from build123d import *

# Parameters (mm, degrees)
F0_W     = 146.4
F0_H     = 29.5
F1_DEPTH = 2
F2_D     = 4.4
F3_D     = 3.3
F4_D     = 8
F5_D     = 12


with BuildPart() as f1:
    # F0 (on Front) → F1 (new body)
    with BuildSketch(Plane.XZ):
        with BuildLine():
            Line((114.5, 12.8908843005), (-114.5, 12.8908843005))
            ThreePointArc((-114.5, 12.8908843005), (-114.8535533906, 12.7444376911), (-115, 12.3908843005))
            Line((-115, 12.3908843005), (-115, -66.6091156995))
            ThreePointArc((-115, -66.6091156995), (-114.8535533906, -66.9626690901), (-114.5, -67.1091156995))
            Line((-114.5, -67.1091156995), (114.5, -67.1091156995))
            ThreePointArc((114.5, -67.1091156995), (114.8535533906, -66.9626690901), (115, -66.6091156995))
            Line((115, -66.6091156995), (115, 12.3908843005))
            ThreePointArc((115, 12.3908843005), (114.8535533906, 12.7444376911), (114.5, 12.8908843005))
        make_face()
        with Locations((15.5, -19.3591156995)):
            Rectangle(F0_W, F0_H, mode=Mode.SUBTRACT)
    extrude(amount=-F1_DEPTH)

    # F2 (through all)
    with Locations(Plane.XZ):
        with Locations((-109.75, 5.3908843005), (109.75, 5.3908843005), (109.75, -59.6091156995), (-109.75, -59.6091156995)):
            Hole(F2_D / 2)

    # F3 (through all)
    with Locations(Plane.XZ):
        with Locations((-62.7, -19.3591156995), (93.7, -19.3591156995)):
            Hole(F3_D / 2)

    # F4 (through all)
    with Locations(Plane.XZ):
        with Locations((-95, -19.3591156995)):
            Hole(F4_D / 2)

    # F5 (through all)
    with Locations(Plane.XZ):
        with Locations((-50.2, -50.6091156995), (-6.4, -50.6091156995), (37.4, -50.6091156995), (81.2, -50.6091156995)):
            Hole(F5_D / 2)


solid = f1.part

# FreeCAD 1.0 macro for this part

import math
import FreeCAD as App
import Part
import Sketcher
Q = App.Units.Quantity

doc = App.newDocument("Part")
body = doc.addObject("PartDesign::Body", "Body")

# Sketch on XZ plane
sketch1 = body.newObject("Sketcher::SketchObject", "Sketch")
sketch1.AttachmentSupport = (doc.getObject("XZ_Plane"), [""])
sketch1.MapMode = "FlatFace"
sketch1.addGeometry(Part.LineSegment(App.Vector(114.5, 12.9, 0), App.Vector(-114.5, 12.9, 0)), False)
sketch1.addGeometry(Part.ArcOfCircle(Part.Circle(App.Vector(-114.5, 12.4, 0), App.Vector(0, 0, 1), 0.5), math.radians(90), math.radians(180)), False)
sketch1.addGeometry(Part.LineSegment(App.Vector(-115, 12.4, 0), App.Vector(-115, -66.6, 0)), False)
sketch1.addGeometry(Part.ArcOfCircle(Part.Circle(App.Vector(-114.5, -66.6, 0), App.Vector(0, 0, 1), 0.5), math.radians(180), math.radians(270)), False)
sketch1.addGeometry(Part.LineSegment(App.Vector(-114.5, -67.1, 0), App.Vector(114.5, -67.1, 0)), False)
sketch1.addGeometry(Part.ArcOfCircle(Part.Circle(App.Vector(114.5, -66.6, 0), App.Vector(0, 0, 1), 0.5), math.radians(-90), math.radians(0)), False)
sketch1.addGeometry(Part.LineSegment(App.Vector(115, -66.6, 0), App.Vector(115, 12.4, 0)), False)
sketch1.addGeometry(Part.ArcOfCircle(Part.Circle(App.Vector(114.5, 12.4, 0), App.Vector(0, 0, 1), 0.5), math.radians(0), math.radians(90)), False)
sketch1.addGeometry(Part.LineSegment(App.Vector(88.7, -34.1, 0), App.Vector(-57.7, -34.1, 0)), False)
sketch1.addGeometry(Part.LineSegment(App.Vector(-57.7, -34.1, 0), App.Vector(-57.7, -4.6, 0)), False)
sketch1.addGeometry(Part.LineSegment(App.Vector(-57.7, -4.6, 0), App.Vector(88.7, -4.6, 0)), False)
sketch1.addGeometry(Part.LineSegment(App.Vector(88.7, -4.6, 0), App.Vector(88.7, -34.1, 0)), False)
sketch1.addConstraint(Sketcher.Constraint("Tangent", 0, 2, 1, 1))
sketch1.addConstraint(Sketcher.Constraint("Tangent", 1, 2, 2, 1))
sketch1.addConstraint(Sketcher.Constraint("Tangent", 2, 2, 3, 1))
sketch1.addConstraint(Sketcher.Constraint("Tangent", 3, 2, 4, 1))
sketch1.addConstraint(Sketcher.Constraint("Tangent", 4, 2, 5, 1))
sketch1.addConstraint(Sketcher.Constraint("Tangent", 5, 2, 6, 1))
sketch1.addConstraint(Sketcher.Constraint("Tangent", 6, 2, 7, 1))
sketch1.addConstraint(Sketcher.Constraint("Tangent", 7, 2, 0, 1))
sketch1.addConstraint(Sketcher.Constraint("Coincident", 8, 2, 9, 1))
sketch1.addConstraint(Sketcher.Constraint("Coincident", 9, 2, 10, 1))
sketch1.addConstraint(Sketcher.Constraint("Coincident", 10, 2, 11, 1))
sketch1.addConstraint(Sketcher.Constraint("Coincident", 11, 2, 8, 1))
sketch1.addConstraint(Sketcher.Constraint("Horizontal", 0))
sketch1.addConstraint(Sketcher.Constraint("Vertical", 2))
sketch1.addConstraint(Sketcher.Constraint("Horizontal", 4))
sketch1.addConstraint(Sketcher.Constraint("Vertical", 6))
sketch1.addConstraint(Sketcher.Constraint("Horizontal", 8))
sketch1.addConstraint(Sketcher.Constraint("Vertical", 9))
sketch1.addConstraint(Sketcher.Constraint("Horizontal", 10))
sketch1.addConstraint(Sketcher.Constraint("Vertical", 11))
sketch1.addConstraint(Sketcher.Constraint("Equal", 1, 3))
sketch1.addConstraint(Sketcher.Constraint("Equal", 3, 5))
sketch1.addConstraint(Sketcher.Constraint("Equal", 5, 7))
sketch1.addConstraint(Sketcher.Constraint("Radius", 1, Q("0.5 mm")))
sketch1.addConstraint(Sketcher.Constraint("DistanceX", 0, 2, 0, 1, Q("229 mm")))
sketch1.addConstraint(Sketcher.Constraint("DistanceY", 2, 2, 2, 1, Q("79 mm")))
sketch1.addConstraint(Sketcher.Constraint("DistanceX", 8, 2, 8, 1, Q("146.4 mm")))
sketch1.addConstraint(Sketcher.Constraint("DistanceY", 9, 1, 9, 2, Q("29.5 mm")))
sketch1.addConstraint(Sketcher.Constraint("DistanceX", 1, 2, -1, 1, Q("115 mm")))
sketch1.addConstraint(Sketcher.Constraint("DistanceY", 3, 2, 8, 2, Q("33 mm")))
sketch1.addConstraint(Sketcher.Constraint("DistanceX", 8, 2, -1, 1, Q("57.7 mm")))
sketch1.addConstraint(Sketcher.Constraint("DistanceY", -1, 1, 1, 3, Q("12.390884 mm")))
pad1 = body.newObject("PartDesign::Pad", "Pad")
pad1.Profile = sketch1
pad1.Length = 2
pad1.Reversed = True

# Sketch on XZ plane
sketch2 = body.newObject("Sketcher::SketchObject", "Sketch001")
sketch2.AttachmentSupport = (doc.getObject("XZ_Plane"), [""])
sketch2.MapMode = "FlatFace"
sketch2.addGeometry(Part.Circle(App.Vector(-109.8, 5.4, 0), App.Vector(0, 0, 1), 2.2), False)
sketch2.addGeometry(Part.Circle(App.Vector(109.8, 5.4, 0), App.Vector(0, 0, 1), 2.2), False)
sketch2.addGeometry(Part.Circle(App.Vector(109.8, -59.6, 0), App.Vector(0, 0, 1), 2.2), False)
sketch2.addGeometry(Part.Circle(App.Vector(-109.8, -59.6, 0), App.Vector(0, 0, 1), 2.2), False)
sketch2.addConstraint(Sketcher.Constraint("Equal", 0, 1))
sketch2.addConstraint(Sketcher.Constraint("Equal", 1, 2))
sketch2.addConstraint(Sketcher.Constraint("Equal", 2, 3))
sketch2.addConstraint(Sketcher.Constraint("Symmetric", 0, 3, 1, 3, -2))
sketch2.addConstraint(Sketcher.Constraint("Symmetric", 2, 3, 3, 3, -2))
sketch2.addConstraint(Sketcher.Constraint("Vertical", 1, 3, 2, 3))
sketch2.addConstraint(Sketcher.Constraint("Diameter", 0, Q("4.4 mm")))
sketch2.addConstraint(Sketcher.Constraint("DistanceY", 2, 3, 1, 3, Q("65 mm")))
sketch2.addConstraint(Sketcher.Constraint("DistanceX", 0, 3, 1, 3, Q("219.5 mm")))
sketch2.addConstraint(Sketcher.Constraint("DistanceY", -1, 1, 0, 3, Q("5.390884 mm")))
doc.recompute()
hole = body.newObject("PartDesign::Hole", "Hole")
hole.Profile = sketch2
hole.ThreadType = "None"
hole.Diameter = 4.4
hole.DepthType = "ThroughAll"

# Sketch on XZ plane
sketch3 = body.newObject("Sketcher::SketchObject", "Sketch002")
sketch3.AttachmentSupport = (doc.getObject("XZ_Plane"), [""])
sketch3.MapMode = "FlatFace"
sketch3.addGeometry(Part.Circle(App.Vector(-62.7, -19.4, 0), App.Vector(0, 0, 1), 1.6), False)
sketch3.addGeometry(Part.Circle(App.Vector(93.7, -19.4, 0), App.Vector(0, 0, 1), 1.6), False)
sketch3.addConstraint(Sketcher.Constraint("Equal", 0, 1))
sketch3.addConstraint(Sketcher.Constraint("Horizontal", 0, 3, 1, 3))
sketch3.addConstraint(Sketcher.Constraint("Diameter", 0, Q("3.3 mm")))
sketch3.addConstraint(Sketcher.Constraint("DistanceX", 0, 3, -1, 1, Q("62.7 mm")))
sketch3.addConstraint(Sketcher.Constraint("DistanceX", -1, 1, 1, 3, Q("93.7 mm")))
sketch3.addConstraint(Sketcher.Constraint("DistanceY", 0, 3, -1, 1, Q("19.359116 mm")))
doc.recompute()
hole2 = body.newObject("PartDesign::Hole", "Hole001")
hole2.Profile = sketch3
hole2.ThreadType = "None"
hole2.Diameter = 3.3
hole2.DepthType = "ThroughAll"

# Sketch on XZ plane
sketch4 = body.newObject("Sketcher::SketchObject", "Sketch003")
sketch4.AttachmentSupport = (doc.getObject("XZ_Plane"), [""])
sketch4.MapMode = "FlatFace"
sketch4.addGeometry(Part.Circle(App.Vector(-95, -19.4, 0), App.Vector(0, 0, 1), 4), False)
sketch4.addConstraint(Sketcher.Constraint("Diameter", 0, Q("8 mm")))
sketch4.addConstraint(Sketcher.Constraint("DistanceX", 0, 3, -1, 1, Q("95 mm")))
sketch4.addConstraint(Sketcher.Constraint("DistanceY", 0, 3, -1, 1, Q("19.359116 mm")))
doc.recompute()
hole3 = body.newObject("PartDesign::Hole", "Hole002")
hole3.Profile = sketch4
hole3.ThreadType = "None"
hole3.Diameter = 8
hole3.DepthType = "ThroughAll"

# Sketch on XZ plane
sketch5 = body.newObject("Sketcher::SketchObject", "Sketch004")
sketch5.AttachmentSupport = (doc.getObject("XZ_Plane"), [""])
sketch5.MapMode = "FlatFace"
sketch5.addGeometry(Part.Circle(App.Vector(-50, -51, 0), App.Vector(0, 0, 1), 6), False)
sketch5.addGeometry(Part.Circle(App.Vector(-6, -51, 0), App.Vector(0, 0, 1), 6), False)
sketch5.addGeometry(Part.Circle(App.Vector(37, -51, 0), App.Vector(0, 0, 1), 6), False)
sketch5.addGeometry(Part.Circle(App.Vector(81, -51, 0), App.Vector(0, 0, 1), 6), False)
sketch5.addConstraint(Sketcher.Constraint("Equal", 0, 1))
sketch5.addConstraint(Sketcher.Constraint("Equal", 1, 2))
sketch5.addConstraint(Sketcher.Constraint("Equal", 2, 3))
sketch5.addConstraint(Sketcher.Constraint("Horizontal", 0, 3, 1, 3))
sketch5.addConstraint(Sketcher.Constraint("Horizontal", 1, 3, 2, 3))
sketch5.addConstraint(Sketcher.Constraint("Horizontal", 2, 3, 3, 3))
sketch5.addConstraint(Sketcher.Constraint("Diameter", 0, Q("12 mm")))
sketch5.addConstraint(Sketcher.Constraint("DistanceX", 0, 3, -1, 1, Q("50.2 mm")))
sketch5.addConstraint(Sketcher.Constraint("DistanceX", 1, 3, -1, 1, Q("6.4 mm")))
sketch5.addConstraint(Sketcher.Constraint("DistanceX", -1, 1, 2, 3, Q("37.4 mm")))
sketch5.addConstraint(Sketcher.Constraint("DistanceX", -1, 1, 3, 3, Q("81.2 mm")))
sketch5.addConstraint(Sketcher.Constraint("DistanceY", 0, 3, -1, 1, Q("50.609116 mm")))
doc.recompute()
hole4 = body.newObject("PartDesign::Hole", "Hole003")
hole4.Profile = sketch5
hole4.ThreadType = "None"
hole4.Diameter = 12
hole4.DepthType = "ThroughAll"

doc.recompute()
